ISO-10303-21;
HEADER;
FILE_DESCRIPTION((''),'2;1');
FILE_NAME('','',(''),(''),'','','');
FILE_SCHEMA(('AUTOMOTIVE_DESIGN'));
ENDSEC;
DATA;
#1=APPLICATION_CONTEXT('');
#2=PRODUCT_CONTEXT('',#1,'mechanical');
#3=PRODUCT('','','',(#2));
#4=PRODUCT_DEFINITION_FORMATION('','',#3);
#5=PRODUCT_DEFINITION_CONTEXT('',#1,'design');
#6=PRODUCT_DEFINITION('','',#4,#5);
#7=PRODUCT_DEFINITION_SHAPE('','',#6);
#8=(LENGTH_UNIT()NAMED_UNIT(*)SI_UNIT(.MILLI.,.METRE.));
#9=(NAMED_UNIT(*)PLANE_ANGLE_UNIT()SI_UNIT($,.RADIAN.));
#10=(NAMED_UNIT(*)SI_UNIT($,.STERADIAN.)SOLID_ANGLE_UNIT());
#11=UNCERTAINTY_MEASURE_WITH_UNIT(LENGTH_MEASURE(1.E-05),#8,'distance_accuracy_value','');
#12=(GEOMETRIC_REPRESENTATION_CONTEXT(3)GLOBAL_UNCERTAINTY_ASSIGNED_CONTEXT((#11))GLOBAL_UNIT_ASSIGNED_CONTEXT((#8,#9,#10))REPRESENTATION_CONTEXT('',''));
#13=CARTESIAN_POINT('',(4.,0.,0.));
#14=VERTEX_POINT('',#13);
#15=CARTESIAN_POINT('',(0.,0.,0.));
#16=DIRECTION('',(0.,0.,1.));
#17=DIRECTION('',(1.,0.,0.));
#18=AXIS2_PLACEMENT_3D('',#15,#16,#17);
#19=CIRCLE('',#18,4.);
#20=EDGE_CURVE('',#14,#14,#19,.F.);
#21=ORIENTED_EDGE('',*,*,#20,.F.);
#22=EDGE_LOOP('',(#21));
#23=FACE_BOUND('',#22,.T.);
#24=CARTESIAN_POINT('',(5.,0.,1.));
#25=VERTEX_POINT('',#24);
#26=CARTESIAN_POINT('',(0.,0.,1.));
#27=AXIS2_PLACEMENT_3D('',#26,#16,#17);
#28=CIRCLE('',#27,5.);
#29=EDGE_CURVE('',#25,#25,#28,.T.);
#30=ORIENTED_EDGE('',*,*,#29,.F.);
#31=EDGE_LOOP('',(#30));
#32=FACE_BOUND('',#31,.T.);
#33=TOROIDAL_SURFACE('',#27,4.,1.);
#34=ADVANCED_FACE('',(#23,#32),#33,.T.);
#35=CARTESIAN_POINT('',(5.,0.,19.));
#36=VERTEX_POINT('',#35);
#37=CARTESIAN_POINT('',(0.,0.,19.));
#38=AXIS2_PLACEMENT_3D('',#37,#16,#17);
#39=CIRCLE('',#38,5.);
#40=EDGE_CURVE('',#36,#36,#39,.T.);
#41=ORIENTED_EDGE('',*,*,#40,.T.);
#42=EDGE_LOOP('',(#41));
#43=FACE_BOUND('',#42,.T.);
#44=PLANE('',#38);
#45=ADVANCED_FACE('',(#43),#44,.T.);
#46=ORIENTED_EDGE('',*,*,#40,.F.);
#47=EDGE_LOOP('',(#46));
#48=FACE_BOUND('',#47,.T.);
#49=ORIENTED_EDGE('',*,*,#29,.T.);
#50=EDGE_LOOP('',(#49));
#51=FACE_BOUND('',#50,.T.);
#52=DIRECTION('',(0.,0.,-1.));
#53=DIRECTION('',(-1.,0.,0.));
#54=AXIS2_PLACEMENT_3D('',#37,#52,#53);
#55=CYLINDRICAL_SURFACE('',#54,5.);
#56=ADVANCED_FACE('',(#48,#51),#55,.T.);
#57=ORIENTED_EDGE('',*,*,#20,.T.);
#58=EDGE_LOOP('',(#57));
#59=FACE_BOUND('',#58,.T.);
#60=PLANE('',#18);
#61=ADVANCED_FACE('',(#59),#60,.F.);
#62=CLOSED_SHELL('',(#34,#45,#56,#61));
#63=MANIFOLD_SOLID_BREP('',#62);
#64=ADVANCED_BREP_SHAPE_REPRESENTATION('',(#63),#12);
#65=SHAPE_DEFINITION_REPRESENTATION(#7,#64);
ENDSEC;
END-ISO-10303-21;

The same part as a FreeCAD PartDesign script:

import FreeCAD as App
import Part
import Sketcher


def edges_at(feature, points):
    """Names of the edges that pass closest to the given points."""
    edges = feature.Shape.Edges
    near = lambda p: min(range(len(edges)), key=lambda i: edges[i].distToShape(Part.Vertex(*p))[0])
    return sorted({f"Edge{near(p) + 1}" for p in points})

doc = App.newDocument("Part")
body = doc.addObject("PartDesign::Body", "Body")

# Sketch on XY plane
sketch1 = body.newObject("Sketcher::SketchObject", "Sketch")
sketch1.AttachmentSupport = (doc.getObject("XY_Plane"), [""])
sketch1.MapMode = "FlatFace"
sketch1.addGeometry(Part.Circle(App.Vector(0, 0, 0), App.Vector(0, 0, 1), 5), False)
sketch1.addConstraint([
    Sketcher.Constraint("Coincident", 0, 3, -1, 1),
    Sketcher.Constraint("Diameter", 0, 10.0),
])
pad1 = body.newObject("PartDesign::Pad", "Pad")
pad1.Profile = sketch1
pad1.Length = 19
doc.recompute()

fillet = body.newObject("PartDesign::Fillet", "Fillet")
fillet.Base = (pad1, edges_at(pad1, [(-5, 0, 0)]))
fillet.Radius = 1

doc.recompute()
